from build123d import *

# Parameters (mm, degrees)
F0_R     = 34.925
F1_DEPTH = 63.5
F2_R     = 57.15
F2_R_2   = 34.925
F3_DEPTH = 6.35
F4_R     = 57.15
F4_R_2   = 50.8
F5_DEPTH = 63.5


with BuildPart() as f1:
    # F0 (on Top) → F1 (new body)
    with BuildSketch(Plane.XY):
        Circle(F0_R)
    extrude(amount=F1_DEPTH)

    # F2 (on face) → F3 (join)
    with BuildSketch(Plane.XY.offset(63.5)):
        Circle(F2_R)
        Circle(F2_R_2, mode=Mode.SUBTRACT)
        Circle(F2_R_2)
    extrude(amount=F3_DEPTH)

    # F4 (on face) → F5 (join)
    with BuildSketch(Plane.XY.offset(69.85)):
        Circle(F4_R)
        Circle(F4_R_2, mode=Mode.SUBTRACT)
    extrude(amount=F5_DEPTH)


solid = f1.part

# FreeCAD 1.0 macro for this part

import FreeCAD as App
import Part
import Sketcher
Q = App.Units.Quantity

doc = App.newDocument("Part")
body = doc.addObject("PartDesign::Body", "Body")

# Sketch on XY plane
sketch1 = body.newObject("Sketcher::SketchObject", "Sketch")
sketch1.AttachmentSupport = (doc.getObject("XY_Plane"), [""])
sketch1.MapMode = "FlatFace"
sketch1.addGeometry(Part.Circle(App.Vector(0, 0, 0), App.Vector(0, 0, 1), 34.925), False)
sketch1.addConstraint([
    Sketcher.Constraint("Coincident", 0, 3, -1, 1),
    Sketcher.Constraint("Diameter", 0, Q("2.75 in")),
])
pad1 = body.newObject("PartDesign::Pad", "Pad")
pad1.Profile = sketch1
pad1.Length = Q("2.5 in")

# Sketch on XY plane
sketch2 = body.newObject("Sketcher::SketchObject", "Sketch001")
sketch2.AttachmentSupport = (doc.getObject("XY_Plane"), [""])
sketch2.MapMode = "FlatFace"
sketch2.AttachmentOffset = App.Placement(App.Vector(0, 0, 2.5 * 25.4), App.Rotation())
sketch2.addGeometry(Part.Circle(App.Vector(0, 0, 0), App.Vector(0, 0, 1), 57.15), False)
sketch2.addConstraint([
    Sketcher.Constraint("Coincident", 0, 3, -1, 1),
    Sketcher.Constraint("Diameter", 0, Q("4.5 in")),
])
pad2 = body.newObject("PartDesign::Pad", "Pad001")
pad2.Profile = sketch2
pad2.Length = Q("0.25 in")

# Sketch on XY plane
sketch3 = body.newObject("Sketcher::SketchObject", "Sketch002")
sketch3.AttachmentSupport = (doc.getObject("XY_Plane"), [""])
sketch3.MapMode = "FlatFace"
sketch3.AttachmentOffset = App.Placement(App.Vector(0, 0, 2.75 * 25.4), App.Rotation())
sketch3.addGeometry([
    Part.Circle(App.Vector(0, 0, 0), App.Vector(0, 0, 1), 57.15),
    Part.Circle(App.Vector(0, 0, 0), App.Vector(0, 0, 1), 50.8),
], False)
sketch3.addConstraint([
    Sketcher.Constraint("Coincident", 0, 3, -1, 1),
    Sketcher.Constraint("Coincident", 1, 3, -1, 1),
    Sketcher.Constraint("Diameter", 1, Q("4 in")),
    Sketcher.Constraint("Diameter", 0, Q("4.5 in")),
])
pad3 = body.newObject("PartDesign::Pad", "Pad002")
pad3.Profile = sketch3
pad3.Length = Q("2.5 in")

doc.recompute()
